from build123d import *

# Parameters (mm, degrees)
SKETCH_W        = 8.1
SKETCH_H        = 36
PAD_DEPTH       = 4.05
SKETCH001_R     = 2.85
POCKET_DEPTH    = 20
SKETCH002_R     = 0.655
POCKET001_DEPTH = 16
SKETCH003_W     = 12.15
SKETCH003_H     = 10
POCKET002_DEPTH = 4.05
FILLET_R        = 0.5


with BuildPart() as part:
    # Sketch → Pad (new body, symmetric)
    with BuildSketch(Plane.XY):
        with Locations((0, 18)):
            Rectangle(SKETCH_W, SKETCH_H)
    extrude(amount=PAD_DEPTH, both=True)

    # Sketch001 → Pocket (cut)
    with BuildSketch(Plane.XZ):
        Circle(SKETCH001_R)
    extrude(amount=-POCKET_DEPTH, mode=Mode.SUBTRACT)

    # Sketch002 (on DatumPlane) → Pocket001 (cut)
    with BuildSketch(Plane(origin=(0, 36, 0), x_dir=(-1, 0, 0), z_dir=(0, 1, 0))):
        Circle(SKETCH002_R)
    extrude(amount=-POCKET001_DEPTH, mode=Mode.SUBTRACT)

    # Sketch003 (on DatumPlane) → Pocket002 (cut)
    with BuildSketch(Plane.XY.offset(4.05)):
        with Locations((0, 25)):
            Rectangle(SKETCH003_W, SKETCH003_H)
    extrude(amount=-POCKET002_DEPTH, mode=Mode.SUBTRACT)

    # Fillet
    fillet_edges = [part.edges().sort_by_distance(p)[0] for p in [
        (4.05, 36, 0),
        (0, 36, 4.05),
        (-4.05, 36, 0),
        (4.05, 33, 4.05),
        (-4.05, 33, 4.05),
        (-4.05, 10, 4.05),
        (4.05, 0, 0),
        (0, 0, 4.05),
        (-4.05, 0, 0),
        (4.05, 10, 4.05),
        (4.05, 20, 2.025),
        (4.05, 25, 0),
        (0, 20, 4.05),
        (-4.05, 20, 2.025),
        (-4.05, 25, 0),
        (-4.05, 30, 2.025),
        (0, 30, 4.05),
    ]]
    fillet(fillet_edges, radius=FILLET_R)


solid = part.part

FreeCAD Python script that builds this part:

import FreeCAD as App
import Part
import Sketcher
Q = App.Units.Quantity


def edges_at(feature, points):
    """Names of the edges that pass closest to the given points."""
    edges = feature.Shape.Edges
    near = lambda p: min(range(len(edges)), key=lambda i: edges[i].distToShape(Part.Vertex(*p))[0])
    return sorted({f"Edge{near(p) + 1}" for p in points})


def add_polygon(sketch, points):
    """Adds a closed chain of lines whose ends are joined by coincident constraints."""
    first, n = sketch.GeometryCount, len(points)
    for a, b in zip(points, points[1:] + points[:1]):
        sketch.addGeometry(Part.LineSegment(App.Vector(*a, 0), App.Vector(*b, 0)), False)
    for i in range(n):
        sketch.addConstraint(Sketcher.Constraint("Coincident", first + i, 2, first + (i + 1) % n, 1))

doc = App.newDocument("Part")
body = doc.addObject("PartDesign::Body", "Body")

# Sketch on XY plane
sketch1 = body.newObject("Sketcher::SketchObject", "Sketch")
sketch1.AttachmentSupport = (doc.getObject("XY_Plane"), [""])
sketch1.MapMode = "FlatFace"
add_polygon(sketch1, [(-4, 36), (-4, 0), (4, 0), (4, 36)])  # lines 0-3
sketch1.addConstraint([
    Sketcher.Constraint("Vertical", 0),
    Sketcher.Constraint("Horizontal", 1),
    Sketcher.Constraint("Vertical", 2),
    Sketcher.Constraint("Horizontal", 3),
    Sketcher.Constraint("Symmetric", 0, 2, 1, 2, -1, 1),
    Sketcher.Constraint("DistanceY", 0, 2, 0, 1, Q("36 mm")),
    Sketcher.Constraint("DistanceX", 1, 1, 1, 2, Q("8.1 mm")),
])
pad1 = body.newObject("PartDesign::Pad", "Pad")
pad1.Profile = sketch1
pad1.Length = 8.1
pad1.Midplane = True

# Sketch on XZ plane
sketch2 = body.newObject("Sketcher::SketchObject", "Sketch001")
sketch2.AttachmentSupport = (doc.getObject("XZ_Plane"), [""])
sketch2.MapMode = "FlatFace"
sketch2.addGeometry(Part.Circle(App.Vector(0, 0, 0), App.Vector(0, 0, 1), 2.9), False)
sketch2.addConstraint([
    Sketcher.Constraint("Coincident", 0, 3, -1, 1),
    Sketcher.Constraint("Diameter", 0, Q("5.7 mm")),
])
pocket1 = body.newObject("PartDesign::Pocket", "Pocket")
pocket1.Profile = sketch2
pocket1.Length = 20

# Sketch on XZ plane
sketch3 = body.newObject("Sketcher::SketchObject", "Sketch002")
sketch3.AttachmentSupport = (doc.getObject("XZ_Plane"), [""])
sketch3.MapMode = "FlatFace"
sketch3.AttachmentOffset = App.Placement(App.Vector(0, 0, -36), App.Rotation())
sketch3.addGeometry(Part.Circle(App.Vector(0, 0, 0), App.Vector(0, 0, 1), 0.7), False)
sketch3.addConstraint([
    Sketcher.Constraint("Coincident", 0, 3, -1, 1),
    Sketcher.Constraint("Diameter", 0, Q("1.31 mm")),
])
pocket2 = body.newObject("PartDesign::Pocket", "Pocket001")
pocket2.Profile = sketch3
pocket2.Length = 16
pocket2.Reversed = True

# Sketch on XY plane
sketch4 = body.newObject("Sketcher::SketchObject", "Sketch003")
sketch4.AttachmentSupport = (doc.getObject("XY_Plane"), [""])
sketch4.MapMode = "FlatFace"
sketch4.AttachmentOffset = App.Placement(App.Vector(0, 0, 4.05), App.Rotation())
add_polygon(sketch4, [(-6, 30), (-6, 20), (6, 20), (6, 30)])  # lines 0-3
sketch4.addConstraint([
    Sketcher.Constraint("Vertical", 0),
    Sketcher.Constraint("Horizontal", 1),
    Sketcher.Constraint("Vertical", 2),
    Sketcher.Constraint("Horizontal", 3),
    Sketcher.Constraint("DistanceY", 0, 2, 0, 1, Q("10 mm")),
    Sketcher.Constraint("DistanceY", -1, 1, 0, 2, Q("20 mm")),
    Sketcher.Constraint("DistanceX", 1, 1, 1, 2, Q("12.15 mm")),
    Sketcher.Constraint("DistanceX", 0, 2, -1, 1, Q("6.075 mm")),
])
pocket3 = body.newObject("PartDesign::Pocket", "Pocket002")
pocket3.Profile = sketch4
pocket3.Length = 4.05
doc.recompute()

fillet = body.newObject("PartDesign::Fillet", "Fillet")
fillet.Base = (pocket3, edges_at(pocket3, [
    (4.05, 36, 0),
    (0, 36, 4.05),
    (-4.05, 36, 0),
    (4.05, 33, 4.05),
    (-4.05, 33, 4.05),
    (-4.05, 10, 4.05),
    (4.05, 0, 0),
    (0, 0, 4.05),
    (-4.05, 0, 0),
    (4.05, 10, 4.05),
    (4.05, 20, 2.025),
    (4.05, 25, 0),
    (0, 20, 4.05),
    (-4.05, 20, 2.025),
    (-4.05, 25, 0),
    (-4.05, 30, 2.025),
    (0, 30, 4.05),
]))
fillet.Radius = 0.5

doc.recompute()
